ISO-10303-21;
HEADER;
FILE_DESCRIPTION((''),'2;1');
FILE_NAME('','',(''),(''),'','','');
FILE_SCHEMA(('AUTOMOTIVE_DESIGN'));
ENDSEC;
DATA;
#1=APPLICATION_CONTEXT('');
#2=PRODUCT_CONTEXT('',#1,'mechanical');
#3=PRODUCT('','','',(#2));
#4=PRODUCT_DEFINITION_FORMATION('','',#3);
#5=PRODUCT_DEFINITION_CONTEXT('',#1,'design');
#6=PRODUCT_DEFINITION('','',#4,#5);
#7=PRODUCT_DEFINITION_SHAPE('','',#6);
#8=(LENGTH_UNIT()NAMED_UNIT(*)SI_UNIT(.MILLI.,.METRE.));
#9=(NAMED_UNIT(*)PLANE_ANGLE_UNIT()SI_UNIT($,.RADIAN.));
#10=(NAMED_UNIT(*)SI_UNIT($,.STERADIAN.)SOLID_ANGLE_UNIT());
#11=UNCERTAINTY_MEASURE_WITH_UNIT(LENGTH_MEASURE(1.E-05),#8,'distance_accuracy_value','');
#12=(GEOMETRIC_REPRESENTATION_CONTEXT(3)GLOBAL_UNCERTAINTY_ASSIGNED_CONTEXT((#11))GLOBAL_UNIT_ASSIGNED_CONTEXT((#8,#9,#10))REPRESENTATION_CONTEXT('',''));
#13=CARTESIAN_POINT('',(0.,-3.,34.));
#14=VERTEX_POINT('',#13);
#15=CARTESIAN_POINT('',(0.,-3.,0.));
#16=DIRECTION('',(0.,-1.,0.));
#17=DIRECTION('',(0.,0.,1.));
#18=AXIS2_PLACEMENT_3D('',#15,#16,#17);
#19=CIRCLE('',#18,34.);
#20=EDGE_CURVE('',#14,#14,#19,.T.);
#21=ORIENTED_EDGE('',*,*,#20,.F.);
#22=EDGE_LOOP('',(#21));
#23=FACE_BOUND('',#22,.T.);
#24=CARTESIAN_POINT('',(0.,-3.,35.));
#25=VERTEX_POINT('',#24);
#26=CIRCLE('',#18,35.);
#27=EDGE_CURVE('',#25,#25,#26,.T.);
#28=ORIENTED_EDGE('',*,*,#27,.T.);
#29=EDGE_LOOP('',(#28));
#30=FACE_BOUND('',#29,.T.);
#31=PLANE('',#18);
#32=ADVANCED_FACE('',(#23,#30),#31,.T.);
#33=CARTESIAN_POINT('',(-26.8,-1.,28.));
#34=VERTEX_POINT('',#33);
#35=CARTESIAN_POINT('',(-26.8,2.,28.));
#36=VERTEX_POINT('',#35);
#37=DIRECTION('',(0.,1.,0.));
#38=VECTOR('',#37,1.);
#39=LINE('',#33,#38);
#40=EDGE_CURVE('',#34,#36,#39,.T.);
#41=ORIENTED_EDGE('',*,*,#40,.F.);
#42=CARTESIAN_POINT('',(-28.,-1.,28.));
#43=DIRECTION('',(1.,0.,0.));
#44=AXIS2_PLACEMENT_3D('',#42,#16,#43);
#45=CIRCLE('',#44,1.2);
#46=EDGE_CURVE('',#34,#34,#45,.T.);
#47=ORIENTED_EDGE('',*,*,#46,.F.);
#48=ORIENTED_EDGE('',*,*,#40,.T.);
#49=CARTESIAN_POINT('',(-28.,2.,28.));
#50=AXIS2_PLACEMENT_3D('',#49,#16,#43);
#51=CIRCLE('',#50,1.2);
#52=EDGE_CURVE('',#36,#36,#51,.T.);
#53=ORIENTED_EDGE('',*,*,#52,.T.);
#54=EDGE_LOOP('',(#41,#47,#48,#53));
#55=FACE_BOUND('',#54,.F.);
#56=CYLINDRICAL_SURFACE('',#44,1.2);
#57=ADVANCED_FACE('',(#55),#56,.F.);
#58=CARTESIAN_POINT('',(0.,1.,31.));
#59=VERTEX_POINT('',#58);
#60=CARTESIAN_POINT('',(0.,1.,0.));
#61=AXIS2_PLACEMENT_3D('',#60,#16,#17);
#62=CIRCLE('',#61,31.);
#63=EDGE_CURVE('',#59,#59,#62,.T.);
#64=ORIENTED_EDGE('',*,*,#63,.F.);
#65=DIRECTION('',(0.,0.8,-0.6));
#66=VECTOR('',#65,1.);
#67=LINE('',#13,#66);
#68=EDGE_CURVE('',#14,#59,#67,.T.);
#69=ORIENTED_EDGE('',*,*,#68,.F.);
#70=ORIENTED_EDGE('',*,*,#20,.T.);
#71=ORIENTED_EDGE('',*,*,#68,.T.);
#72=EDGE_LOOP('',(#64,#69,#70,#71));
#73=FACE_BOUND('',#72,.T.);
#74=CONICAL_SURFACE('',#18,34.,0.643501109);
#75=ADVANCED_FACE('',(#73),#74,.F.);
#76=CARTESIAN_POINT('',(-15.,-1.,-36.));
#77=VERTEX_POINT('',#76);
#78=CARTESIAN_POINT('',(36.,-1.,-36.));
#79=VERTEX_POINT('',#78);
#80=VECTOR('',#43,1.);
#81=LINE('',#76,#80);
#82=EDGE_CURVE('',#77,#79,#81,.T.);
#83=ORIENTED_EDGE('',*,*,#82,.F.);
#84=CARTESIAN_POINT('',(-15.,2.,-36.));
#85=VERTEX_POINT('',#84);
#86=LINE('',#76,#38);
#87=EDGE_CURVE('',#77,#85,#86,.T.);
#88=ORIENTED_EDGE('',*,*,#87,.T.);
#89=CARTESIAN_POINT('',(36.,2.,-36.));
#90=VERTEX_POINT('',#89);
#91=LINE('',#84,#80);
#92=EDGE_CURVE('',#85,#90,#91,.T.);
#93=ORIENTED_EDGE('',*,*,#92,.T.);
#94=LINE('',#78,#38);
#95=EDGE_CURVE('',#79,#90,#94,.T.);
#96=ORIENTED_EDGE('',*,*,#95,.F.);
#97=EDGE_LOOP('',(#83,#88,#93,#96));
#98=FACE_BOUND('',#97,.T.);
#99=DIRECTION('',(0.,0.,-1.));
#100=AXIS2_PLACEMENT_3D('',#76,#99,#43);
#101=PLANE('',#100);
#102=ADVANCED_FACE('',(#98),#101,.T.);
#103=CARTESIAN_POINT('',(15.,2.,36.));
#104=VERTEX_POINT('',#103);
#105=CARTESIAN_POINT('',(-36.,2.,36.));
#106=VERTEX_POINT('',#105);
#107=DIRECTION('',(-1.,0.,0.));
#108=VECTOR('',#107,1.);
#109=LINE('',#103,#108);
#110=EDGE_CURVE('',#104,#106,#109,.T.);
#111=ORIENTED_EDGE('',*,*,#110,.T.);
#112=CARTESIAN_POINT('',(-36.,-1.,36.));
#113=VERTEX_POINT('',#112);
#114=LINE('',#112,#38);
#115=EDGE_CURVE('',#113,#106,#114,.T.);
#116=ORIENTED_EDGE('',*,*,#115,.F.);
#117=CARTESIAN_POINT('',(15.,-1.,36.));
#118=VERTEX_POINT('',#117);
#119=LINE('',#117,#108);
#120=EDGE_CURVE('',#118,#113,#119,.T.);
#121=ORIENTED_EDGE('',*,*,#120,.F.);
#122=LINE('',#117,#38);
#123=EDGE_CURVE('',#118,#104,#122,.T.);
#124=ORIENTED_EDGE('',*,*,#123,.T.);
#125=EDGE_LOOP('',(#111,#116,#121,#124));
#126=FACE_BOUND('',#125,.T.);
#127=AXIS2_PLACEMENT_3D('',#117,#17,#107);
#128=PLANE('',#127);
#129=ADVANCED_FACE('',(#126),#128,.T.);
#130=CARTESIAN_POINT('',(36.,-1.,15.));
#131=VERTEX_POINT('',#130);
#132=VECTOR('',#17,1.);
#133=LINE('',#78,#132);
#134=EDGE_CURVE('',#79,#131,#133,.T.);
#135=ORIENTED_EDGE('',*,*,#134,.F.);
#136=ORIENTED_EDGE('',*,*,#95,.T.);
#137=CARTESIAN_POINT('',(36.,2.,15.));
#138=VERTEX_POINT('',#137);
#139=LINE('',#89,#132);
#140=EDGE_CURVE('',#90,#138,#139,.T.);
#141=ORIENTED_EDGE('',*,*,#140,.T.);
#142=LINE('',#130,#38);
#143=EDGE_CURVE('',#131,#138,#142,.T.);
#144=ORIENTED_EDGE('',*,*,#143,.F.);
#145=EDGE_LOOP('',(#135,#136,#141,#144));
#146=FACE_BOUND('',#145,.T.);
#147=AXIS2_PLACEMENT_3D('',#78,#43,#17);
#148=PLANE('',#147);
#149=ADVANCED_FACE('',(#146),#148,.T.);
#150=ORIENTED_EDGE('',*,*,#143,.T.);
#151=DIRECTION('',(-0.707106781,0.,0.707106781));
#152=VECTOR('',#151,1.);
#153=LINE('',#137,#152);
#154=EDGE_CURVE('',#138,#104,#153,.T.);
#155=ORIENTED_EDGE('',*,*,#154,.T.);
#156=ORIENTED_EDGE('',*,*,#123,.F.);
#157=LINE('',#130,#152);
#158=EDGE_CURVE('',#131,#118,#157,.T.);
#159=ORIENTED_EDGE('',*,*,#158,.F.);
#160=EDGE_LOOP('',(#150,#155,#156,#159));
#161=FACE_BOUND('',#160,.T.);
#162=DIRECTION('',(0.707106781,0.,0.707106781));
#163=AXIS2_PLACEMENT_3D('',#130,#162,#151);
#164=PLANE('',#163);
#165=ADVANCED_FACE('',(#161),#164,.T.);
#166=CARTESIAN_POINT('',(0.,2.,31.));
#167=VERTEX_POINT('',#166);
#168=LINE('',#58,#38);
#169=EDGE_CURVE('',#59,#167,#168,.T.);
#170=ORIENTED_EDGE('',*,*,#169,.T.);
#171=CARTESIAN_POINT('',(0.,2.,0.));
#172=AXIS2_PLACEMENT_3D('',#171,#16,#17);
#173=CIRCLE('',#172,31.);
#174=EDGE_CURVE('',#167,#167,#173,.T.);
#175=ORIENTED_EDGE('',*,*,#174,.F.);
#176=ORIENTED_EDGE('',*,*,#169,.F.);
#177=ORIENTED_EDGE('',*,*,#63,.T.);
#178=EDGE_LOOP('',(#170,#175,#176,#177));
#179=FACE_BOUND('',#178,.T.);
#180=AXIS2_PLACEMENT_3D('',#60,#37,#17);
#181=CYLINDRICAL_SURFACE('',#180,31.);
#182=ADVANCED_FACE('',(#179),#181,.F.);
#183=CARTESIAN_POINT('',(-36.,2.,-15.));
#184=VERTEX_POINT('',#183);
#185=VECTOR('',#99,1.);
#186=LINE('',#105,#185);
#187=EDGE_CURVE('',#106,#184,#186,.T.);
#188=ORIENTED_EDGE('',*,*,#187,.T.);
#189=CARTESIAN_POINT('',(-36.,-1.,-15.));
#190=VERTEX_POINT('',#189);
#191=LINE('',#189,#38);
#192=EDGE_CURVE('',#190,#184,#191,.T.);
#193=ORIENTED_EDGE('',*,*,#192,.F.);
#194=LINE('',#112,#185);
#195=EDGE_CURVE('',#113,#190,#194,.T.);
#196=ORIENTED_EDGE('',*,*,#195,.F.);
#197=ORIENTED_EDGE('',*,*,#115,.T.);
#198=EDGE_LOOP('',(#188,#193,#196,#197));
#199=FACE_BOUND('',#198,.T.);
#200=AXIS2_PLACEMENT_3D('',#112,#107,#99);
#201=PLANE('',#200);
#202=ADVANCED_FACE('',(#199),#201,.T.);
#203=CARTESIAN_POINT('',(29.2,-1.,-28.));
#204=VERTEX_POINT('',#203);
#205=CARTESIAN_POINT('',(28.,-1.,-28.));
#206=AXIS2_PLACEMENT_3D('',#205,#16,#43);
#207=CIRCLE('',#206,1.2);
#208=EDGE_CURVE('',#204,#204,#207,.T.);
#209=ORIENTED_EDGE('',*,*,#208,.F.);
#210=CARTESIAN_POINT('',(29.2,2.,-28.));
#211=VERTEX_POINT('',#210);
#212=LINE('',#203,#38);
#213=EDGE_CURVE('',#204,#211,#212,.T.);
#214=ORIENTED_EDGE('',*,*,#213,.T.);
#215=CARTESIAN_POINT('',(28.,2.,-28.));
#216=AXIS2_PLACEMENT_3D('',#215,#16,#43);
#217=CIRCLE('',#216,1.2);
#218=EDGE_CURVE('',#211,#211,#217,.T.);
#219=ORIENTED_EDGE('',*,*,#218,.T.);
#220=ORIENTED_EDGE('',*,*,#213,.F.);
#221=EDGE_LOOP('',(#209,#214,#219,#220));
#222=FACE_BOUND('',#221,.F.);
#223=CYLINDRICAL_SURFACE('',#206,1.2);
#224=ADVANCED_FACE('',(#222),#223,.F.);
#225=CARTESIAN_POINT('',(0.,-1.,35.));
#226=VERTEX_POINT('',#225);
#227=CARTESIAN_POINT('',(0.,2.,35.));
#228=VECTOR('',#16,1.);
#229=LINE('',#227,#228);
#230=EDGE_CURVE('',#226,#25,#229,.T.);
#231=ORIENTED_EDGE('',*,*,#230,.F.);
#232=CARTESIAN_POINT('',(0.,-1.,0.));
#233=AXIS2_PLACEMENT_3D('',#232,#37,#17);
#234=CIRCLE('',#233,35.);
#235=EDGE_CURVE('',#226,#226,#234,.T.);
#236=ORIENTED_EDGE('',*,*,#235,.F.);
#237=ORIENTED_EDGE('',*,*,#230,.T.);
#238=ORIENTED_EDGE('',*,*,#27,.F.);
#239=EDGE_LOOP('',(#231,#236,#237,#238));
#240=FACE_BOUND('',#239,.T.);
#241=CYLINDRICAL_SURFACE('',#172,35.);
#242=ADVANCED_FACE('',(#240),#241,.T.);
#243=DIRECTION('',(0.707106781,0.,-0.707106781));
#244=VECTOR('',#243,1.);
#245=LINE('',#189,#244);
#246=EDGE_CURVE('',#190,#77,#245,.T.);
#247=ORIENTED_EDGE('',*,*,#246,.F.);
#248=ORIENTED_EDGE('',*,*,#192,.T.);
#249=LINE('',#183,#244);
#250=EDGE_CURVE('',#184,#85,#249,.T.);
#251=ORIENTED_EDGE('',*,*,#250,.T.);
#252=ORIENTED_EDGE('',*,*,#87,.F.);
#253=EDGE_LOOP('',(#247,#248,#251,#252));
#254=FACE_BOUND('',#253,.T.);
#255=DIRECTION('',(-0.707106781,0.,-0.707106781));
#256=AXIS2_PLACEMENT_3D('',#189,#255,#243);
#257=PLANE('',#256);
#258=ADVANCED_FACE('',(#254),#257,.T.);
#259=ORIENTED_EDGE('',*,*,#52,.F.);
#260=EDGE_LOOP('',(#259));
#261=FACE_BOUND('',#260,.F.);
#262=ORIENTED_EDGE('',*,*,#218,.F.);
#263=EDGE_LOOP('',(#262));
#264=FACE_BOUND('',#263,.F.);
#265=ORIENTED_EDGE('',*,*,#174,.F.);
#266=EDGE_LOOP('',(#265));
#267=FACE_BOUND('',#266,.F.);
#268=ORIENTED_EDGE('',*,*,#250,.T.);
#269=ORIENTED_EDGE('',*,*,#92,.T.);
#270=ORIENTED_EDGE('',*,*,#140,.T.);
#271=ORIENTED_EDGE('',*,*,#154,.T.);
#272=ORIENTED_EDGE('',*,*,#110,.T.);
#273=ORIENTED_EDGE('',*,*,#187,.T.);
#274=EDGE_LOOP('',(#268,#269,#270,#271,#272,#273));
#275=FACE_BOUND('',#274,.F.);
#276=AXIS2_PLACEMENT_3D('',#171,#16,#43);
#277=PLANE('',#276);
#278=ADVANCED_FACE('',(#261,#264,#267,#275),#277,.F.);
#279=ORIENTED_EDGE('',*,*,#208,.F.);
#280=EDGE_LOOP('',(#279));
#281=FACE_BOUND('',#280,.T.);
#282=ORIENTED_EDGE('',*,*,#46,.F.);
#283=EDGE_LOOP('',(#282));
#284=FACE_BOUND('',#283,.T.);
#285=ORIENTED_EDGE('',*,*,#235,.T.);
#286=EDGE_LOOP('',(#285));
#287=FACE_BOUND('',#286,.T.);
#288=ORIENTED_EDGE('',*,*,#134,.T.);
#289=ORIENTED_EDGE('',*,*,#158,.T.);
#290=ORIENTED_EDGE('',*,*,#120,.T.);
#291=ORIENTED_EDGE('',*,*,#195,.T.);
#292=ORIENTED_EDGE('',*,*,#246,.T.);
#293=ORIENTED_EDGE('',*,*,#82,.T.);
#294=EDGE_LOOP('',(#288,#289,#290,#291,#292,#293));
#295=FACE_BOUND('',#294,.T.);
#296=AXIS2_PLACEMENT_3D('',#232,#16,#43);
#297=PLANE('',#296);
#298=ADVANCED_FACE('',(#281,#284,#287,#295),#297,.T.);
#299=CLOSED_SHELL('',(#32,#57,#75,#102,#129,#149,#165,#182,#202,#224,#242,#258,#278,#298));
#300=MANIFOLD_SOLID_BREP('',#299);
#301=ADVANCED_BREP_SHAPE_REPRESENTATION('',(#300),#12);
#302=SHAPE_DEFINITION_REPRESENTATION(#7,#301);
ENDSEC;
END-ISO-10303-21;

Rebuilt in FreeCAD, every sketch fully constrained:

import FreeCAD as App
import Part
import Sketcher

V = App.Vector
Q = App.Units.Quantity

doc = App.newDocument("Part")
body = doc.addObject("PartDesign::Body", "Body")

# Sketch on YZ plane
sketch1 = body.newObject("Sketcher::SketchObject", "Sketch")
sketch1.AttachmentSupport = (doc.getObject("YZ_Plane"), [""])
sketch1.MapMode = "FlatFace"
sketch1.addGeometry([
    Part.LineSegment(V(2, 35, 0), V(-3, 35, 0)),  # 0
    Part.LineSegment(V(-3, 35, 0), V(-3, 34, 0)),  # 1
    Part.LineSegment(V(-3, 34, 0), V(1, 31, 0)),  # 2
    Part.LineSegment(V(1, 31, 0), V(2, 31, 0)),  # 3
    Part.LineSegment(V(2, 31, 0), V(2, 35, 0)),  # 4
], False)
sketch1.addConstraint([
    Sketcher.Constraint("Coincident", 0, 2, 1, 1),
    Sketcher.Constraint("Coincident", 1, 2, 2, 1),
    Sketcher.Constraint("Coincident", 2, 2, 3, 1),
    Sketcher.Constraint("Coincident", 3, 2, 4, 1),
    Sketcher.Constraint("Coincident", 4, 2, 0, 1),
    Sketcher.Constraint("Horizontal", 0),
    Sketcher.Constraint("Vertical", 1),
    Sketcher.Constraint("Horizontal", 3),
    Sketcher.Constraint("Vertical", 4),
    Sketcher.Constraint("Equal", 3, 1),
    Sketcher.Constraint("DistanceX", 0, 2, 0, 1, 5.0),
    Sketcher.Constraint("DistanceX", 3, 1, 3, 2, 1.0),
    Sketcher.Constraint("DistanceY", 4, 1, 4, 2, 4.0),
    Sketcher.Constraint("DistanceX", 0, 2, -1, 1, 3.0),
    Sketcher.Constraint("DistanceY", -1, 1, 0, 2, 35.0),
])
revolution = body.newObject("PartDesign::Revolution", "Revolution")
revolution.Profile = sketch1
revolution.ReferenceAxis = (sketch1, ["H_Axis"])
revolution.Angle = 360

# Sketch on XZ plane
sketch2 = body.newObject("Sketcher::SketchObject", "Sketch001")
sketch2.AttachmentSupport = (doc.getObject("XZ_Plane"), [""])
sketch2.MapMode = "FlatFace"
sketch2.AttachmentOffset = App.Placement(V(0, 0, 1), App.Rotation())
sketch2.addGeometry([
    Part.LineSegment(V(-15, -36, 0), V(36, -36, 0)),  # 0
    Part.LineSegment(V(36, -36, 0), V(36, 15, 0)),  # 1
    Part.LineSegment(V(36, 15, 0), V(15, 36, 0)),  # 2
    Part.LineSegment(V(15, 36, 0), V(-36, 36, 0)),  # 3
    Part.LineSegment(V(-36, 36, 0), V(-36, -15, 0)),  # 4
    Part.LineSegment(V(-36, -15, 0), V(-15, -36, 0)),  # 5
    Part.Circle(V(28, -28, 0), V(0, 0, 1), 1.2),  # 6
    Part.Circle(V(-28, 28, 0), V(0, 0, 1), 1.2),  # 7
    Part.Circle(V(0, 0, 0), V(0, 0, 1), 35),  # 8
], False)
sketch2.addConstraint([
    Sketcher.Constraint("Coincident", 0, 2, 1, 1),
    Sketcher.Constraint("Coincident", 1, 2, 2, 1),
    Sketcher.Constraint("Coincident", 2, 2, 3, 1),
    Sketcher.Constraint("Coincident", 3, 2, 4, 1),
    Sketcher.Constraint("Coincident", 4, 2, 5, 1),
    Sketcher.Constraint("Coincident", 5, 2, 0, 1),
    Sketcher.Constraint("Horizontal", 0),
    Sketcher.Constraint("Vertical", 1),
    Sketcher.Constraint("Horizontal", 3),
    Sketcher.Constraint("Vertical", 4),
    Sketcher.Constraint("Coincident", 8, 3, -1, 1),
    Sketcher.Constraint("Equal", 6, 7),
    Sketcher.Constraint("Symmetric", 6, 3, 7, 3, -1, 1),
    Sketcher.Constraint("Symmetric", 0, 2, 3, 2, -1, 1),
    Sketcher.Constraint("Parallel", 2, 5),
    Sketcher.Constraint("Equal", 0, 3),
    Sketcher.Constraint("Equal", 3, 1),
    Sketcher.Constraint("Diameter", 8, 70.0),
    Sketcher.Constraint("Diameter", 6, 2.4),
    Sketcher.Constraint("DistanceX", 0, 1, 0, 2, 51.0),
    Sketcher.Constraint("Angle", 2, Q("135 deg")),
    Sketcher.Constraint("DistanceX", -1, 1, 6, 3, 28.0),
    Sketcher.Constraint("DistanceY", 6, 3, -1, 1, 28.0),
    Sketcher.Constraint("DistanceX", -1, 1, 0, 2, 36.0),
])
pad1 = body.newObject("PartDesign::Pad", "Pad")
pad1.Profile = sketch2
pad1.Length = 3
pad1.Reversed = True

doc.recompute()
